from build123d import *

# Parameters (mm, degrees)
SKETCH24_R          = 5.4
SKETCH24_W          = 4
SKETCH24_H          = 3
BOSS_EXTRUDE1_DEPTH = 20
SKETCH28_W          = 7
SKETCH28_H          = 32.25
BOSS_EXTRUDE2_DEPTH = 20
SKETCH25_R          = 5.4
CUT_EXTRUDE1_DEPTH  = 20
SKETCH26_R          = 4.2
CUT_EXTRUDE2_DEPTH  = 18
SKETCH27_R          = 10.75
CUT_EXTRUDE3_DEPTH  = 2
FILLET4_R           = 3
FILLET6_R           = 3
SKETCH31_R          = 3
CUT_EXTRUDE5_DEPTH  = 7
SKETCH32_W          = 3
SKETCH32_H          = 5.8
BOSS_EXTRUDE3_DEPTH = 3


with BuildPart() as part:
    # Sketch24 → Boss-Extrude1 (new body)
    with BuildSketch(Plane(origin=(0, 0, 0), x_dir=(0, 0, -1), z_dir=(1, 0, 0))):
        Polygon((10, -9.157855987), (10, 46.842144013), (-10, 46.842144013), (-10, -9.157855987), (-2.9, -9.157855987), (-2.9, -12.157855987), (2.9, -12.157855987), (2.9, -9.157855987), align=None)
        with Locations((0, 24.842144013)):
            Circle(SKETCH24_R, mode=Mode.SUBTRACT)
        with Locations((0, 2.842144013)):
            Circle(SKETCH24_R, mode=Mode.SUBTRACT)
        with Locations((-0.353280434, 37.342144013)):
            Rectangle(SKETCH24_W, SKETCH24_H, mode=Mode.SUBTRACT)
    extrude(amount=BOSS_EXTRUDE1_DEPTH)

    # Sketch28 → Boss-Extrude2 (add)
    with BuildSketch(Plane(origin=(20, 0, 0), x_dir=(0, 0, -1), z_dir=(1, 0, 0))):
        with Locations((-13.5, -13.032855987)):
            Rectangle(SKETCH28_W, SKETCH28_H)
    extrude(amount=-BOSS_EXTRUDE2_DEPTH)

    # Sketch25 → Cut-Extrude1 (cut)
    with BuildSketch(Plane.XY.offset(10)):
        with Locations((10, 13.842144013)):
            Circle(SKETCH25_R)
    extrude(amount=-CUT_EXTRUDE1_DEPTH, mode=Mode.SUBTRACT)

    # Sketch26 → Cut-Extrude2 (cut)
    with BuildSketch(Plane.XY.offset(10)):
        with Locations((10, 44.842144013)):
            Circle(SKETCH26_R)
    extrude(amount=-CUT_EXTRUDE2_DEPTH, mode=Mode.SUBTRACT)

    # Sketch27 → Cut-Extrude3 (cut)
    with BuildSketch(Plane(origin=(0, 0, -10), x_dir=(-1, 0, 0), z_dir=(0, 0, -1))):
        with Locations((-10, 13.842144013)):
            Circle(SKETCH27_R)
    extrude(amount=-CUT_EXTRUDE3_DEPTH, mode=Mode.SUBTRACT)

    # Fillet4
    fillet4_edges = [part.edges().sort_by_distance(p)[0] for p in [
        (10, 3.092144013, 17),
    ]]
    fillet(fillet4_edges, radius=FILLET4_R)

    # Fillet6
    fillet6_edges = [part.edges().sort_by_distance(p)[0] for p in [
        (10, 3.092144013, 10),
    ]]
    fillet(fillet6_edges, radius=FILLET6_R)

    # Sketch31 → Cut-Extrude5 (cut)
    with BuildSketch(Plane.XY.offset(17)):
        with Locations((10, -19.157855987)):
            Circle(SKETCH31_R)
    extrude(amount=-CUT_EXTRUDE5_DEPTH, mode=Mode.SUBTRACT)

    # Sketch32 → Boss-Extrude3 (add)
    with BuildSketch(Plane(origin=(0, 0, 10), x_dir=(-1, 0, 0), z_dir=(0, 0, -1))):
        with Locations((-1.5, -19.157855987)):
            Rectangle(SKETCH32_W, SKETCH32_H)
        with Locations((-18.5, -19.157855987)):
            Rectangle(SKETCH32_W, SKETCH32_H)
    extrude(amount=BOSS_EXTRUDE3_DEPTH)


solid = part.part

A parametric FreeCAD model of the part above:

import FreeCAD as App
import Part
import Sketcher


def edges_at(feature, points):
    """Names of the edges that pass closest to the given points."""
    edges = feature.Shape.Edges
    near = lambda p: min(range(len(edges)), key=lambda i: edges[i].distToShape(Part.Vertex(*p))[0])
    return sorted({f"Edge{near(p) + 1}" for p in points})


def add_polygon(sketch, points):
    """Adds a closed chain of lines whose ends are joined by coincident constraints."""
    first, n = sketch.GeometryCount, len(points)
    for a, b in zip(points, points[1:] + points[:1]):
        sketch.addGeometry(Part.LineSegment(App.Vector(*a, 0), App.Vector(*b, 0)), False)
    for i in range(n):
        sketch.addConstraint(Sketcher.Constraint("Coincident", first + i, 2, first + (i + 1) % n, 1))

doc = App.newDocument("Part")
body = doc.addObject("PartDesign::Body", "Body")

sketch1 = body.newObject("Sketcher::SketchObject", "Sketch")
sketch1.AttachmentSupport = (doc.getObject("YZ_Plane"), [""])
sketch1.MapMode = "FlatFace"
add_polygon(sketch1, [(-9.2, -10), (46.8, -10), (46.8, 10), (-9.2, 10), (-9.2, 2.9), (-12.2, 2.9), (-12.2, -2.9), (-9.2, -2.9)])
sketch1.addGeometry(Part.Circle(App.Vector(2.8, 0, 0), App.Vector(0, 0, 1), 5.4), False)
add_polygon(sketch1, [(35.8, -1.6), (35.8, 2.4), (38.8, 2.4), (38.8, -1.6)])
sketch1.addGeometry(Part.Circle(App.Vector(24.8, 0, 0), App.Vector(0, 0, 1), 5.4), False)
sketch1.addConstraint(Sketcher.Constraint("Horizontal", 0))
sketch1.addConstraint(Sketcher.Constraint("Vertical", 1))
sketch1.addConstraint(Sketcher.Constraint("Horizontal", 2))
sketch1.addConstraint(Sketcher.Constraint("Vertical", 3))
sketch1.addConstraint(Sketcher.Constraint("Horizontal", 4))
sketch1.addConstraint(Sketcher.Constraint("Vertical", 5))
sketch1.addConstraint(Sketcher.Constraint("Horizontal", 6))
sketch1.addConstraint(Sketcher.Constraint("Vertical", 7))
sketch1.addConstraint(Sketcher.Constraint("Vertical", 9))
sketch1.addConstraint(Sketcher.Constraint("Horizontal", 10))
sketch1.addConstraint(Sketcher.Constraint("Vertical", 11))
sketch1.addConstraint(Sketcher.Constraint("Horizontal", 12))
sketch1.addConstraint(Sketcher.Constraint("Equal", 8, 13))
sketch1.addConstraint(Sketcher.Constraint("Symmetric", 3, 2, 6, 2, -1))
sketch1.addConstraint(Sketcher.Constraint("PointOnObject", 8, 3, -1))
sketch1.addConstraint(Sketcher.Constraint("PointOnObject", 13, 3, -1))
sketch1.addConstraint(Sketcher.Constraint("Equal", 6, 10))
sketch1.addConstraint(Sketcher.Constraint("Equal", 3, 7))
sketch1.addConstraint(Sketcher.Constraint("Diameter", 8, 10.8))
sketch1.addConstraint(Sketcher.Constraint("DistanceX", 0, 1, 0, 2, 56.0))
sketch1.addConstraint(Sketcher.Constraint("DistanceX", 4, 2, 4, 1, 3.0))
sketch1.addConstraint(Sketcher.Constraint("DistanceY", 1, 1, 1, 2, 20.0))
sketch1.addConstraint(Sketcher.Constraint("DistanceY", 9, 1, 9, 2, 4.0))
sketch1.addConstraint(Sketcher.Constraint("DistanceY", 3, 2, 3, 1, 7.1))
sketch1.addConstraint(Sketcher.Constraint("DistanceX", 8, 3, 13, 3, 22.0))
sketch1.addConstraint(Sketcher.Constraint("DistanceX", 13, 3, 0, 2, 22.0))
sketch1.addConstraint(Sketcher.Constraint("DistanceX", 13, 3, 9, 2, 11.0))
sketch1.addConstraint(Sketcher.Constraint("DistanceY", -1, 1, 9, 2, 2.35328))
sketch1.addConstraint(Sketcher.Constraint("DistanceX", -1, 1, 8, 3, 2.842144))
pad1 = body.newObject("PartDesign::Pad", "Pad")
pad1.Profile = sketch1
pad1.Length = 20

sketch2 = body.newObject("Sketcher::SketchObject", "Sketch001")
sketch2.AttachmentSupport = (doc.getObject("YZ_Plane"), [""])
sketch2.MapMode = "FlatFace"
sketch2.AttachmentOffset = App.Placement(App.Vector(0, 0, 20), App.Rotation())
add_polygon(sketch2, [(3, 17), (-29, 17), (-29, 10), (3, 10)])
sketch2.addConstraint(Sketcher.Constraint("Horizontal", 0))
sketch2.addConstraint(Sketcher.Constraint("Vertical", 1))
sketch2.addConstraint(Sketcher.Constraint("Horizontal", 2))
sketch2.addConstraint(Sketcher.Constraint("Vertical", 3))
sketch2.addConstraint(Sketcher.Constraint("DistanceY", 1, 2, 1, 1, 7.0))
sketch2.addConstraint(Sketcher.Constraint("DistanceY", -1, 1, 0, 2, 17.0))
sketch2.addConstraint(Sketcher.Constraint("DistanceX", 0, 2, 0, 1, 32.25))
sketch2.addConstraint(Sketcher.Constraint("DistanceX", 0, 2, -1, 1, 29.157856))
pad2 = body.newObject("PartDesign::Pad", "Pad001")
pad2.Profile = sketch2
pad2.Length = 20
pad2.Reversed = True

sketch3 = body.newObject("Sketcher::SketchObject", "Sketch002")
sketch3.AttachmentSupport = (doc.getObject("XY_Plane"), [""])
sketch3.MapMode = "FlatFace"
sketch3.AttachmentOffset = App.Placement(App.Vector(0, 0, 10), App.Rotation())
sketch3.addGeometry(Part.Circle(App.Vector(10, 14, 0), App.Vector(0, 0, 1), 5), False)
sketch3.addConstraint(Sketcher.Constraint("Diameter", 0, 10.8))
sketch3.addConstraint(Sketcher.Constraint("DistanceX", -1, 1, 0, 3, 10.0))
sketch3.addConstraint(Sketcher.Constraint("DistanceY", -1, 1, 0, 3, 13.842144))
pocket1 = body.newObject("PartDesign::Pocket", "Pocket")
pocket1.Profile = sketch3
pocket1.Length = 20

sketch4 = body.newObject("Sketcher::SketchObject", "Sketch003")
sketch4.AttachmentSupport = (doc.getObject("XY_Plane"), [""])
sketch4.MapMode = "FlatFace"
sketch4.AttachmentOffset = App.Placement(App.Vector(0, 0, 10), App.Rotation())
sketch4.addGeometry(Part.Circle(App.Vector(10, 44.8, 0), App.Vector(0, 0, 1), 4.2), False)
sketch4.addConstraint(Sketcher.Constraint("Diameter", 0, 8.4))
sketch4.addConstraint(Sketcher.Constraint("DistanceX", -1, 1, 0, 3, 10.0))
sketch4.addConstraint(Sketcher.Constraint("DistanceY", -1, 1, 0, 3, 44.842144))
pocket2 = body.newObject("PartDesign::Pocket", "Pocket001")
pocket2.Profile = sketch4
pocket2.Length = 18

sketch5 = body.newObject("Sketcher::SketchObject", "Sketch004")
sketch5.AttachmentSupport = (doc.getObject("XY_Plane"), [""])
sketch5.MapMode = "FlatFace"
sketch5.AttachmentOffset = App.Placement(App.Vector(0, 0, -10), App.Rotation())
sketch5.addGeometry(Part.Circle(App.Vector(10, 14, 0), App.Vector(0, 0, 1), 11), False)
sketch5.addConstraint(Sketcher.Constraint("Diameter", 0, 21.5))
sketch5.addConstraint(Sketcher.Constraint("DistanceX", -1, 1, 0, 3, 10.0))
sketch5.addConstraint(Sketcher.Constraint("DistanceY", -1, 1, 0, 3, 13.842144))
pocket3 = body.newObject("PartDesign::Pocket", "Pocket002")
pocket3.Profile = sketch5
pocket3.Length = 2
pocket3.Reversed = True
doc.recompute()

fillet = body.newObject("PartDesign::Fillet", "Fillet")
fillet.Base = (pocket3, edges_at(pocket3, [(10, 3.092, 17)]))
fillet.Radius = 3
doc.recompute()

fillet2 = body.newObject("PartDesign::Fillet", "Fillet001")
fillet2.Base = (fillet, edges_at(fillet, [(10, 3.092, 10)]))
fillet2.Radius = 3

sketch6 = body.newObject("Sketcher::SketchObject", "Sketch005")
sketch6.AttachmentSupport = (doc.getObject("XY_Plane"), [""])
sketch6.MapMode = "FlatFace"
sketch6.AttachmentOffset = App.Placement(App.Vector(0, 0, 17), App.Rotation())
sketch6.addGeometry(Part.Circle(App.Vector(10, -19.2, 0), App.Vector(0, 0, 1), 3), False)
sketch6.addConstraint(Sketcher.Constraint("Diameter", 0, 6.0))
sketch6.addConstraint(Sketcher.Constraint("DistanceX", -1, 1, 0, 3, 10.0))
sketch6.addConstraint(Sketcher.Constraint("DistanceY", 0, 3, -1, 1, 19.157856))
pocket4 = body.newObject("PartDesign::Pocket", "Pocket003")
pocket4.Profile = sketch6
pocket4.Length = 7

sketch7 = body.newObject("Sketcher::SketchObject", "Sketch006")
sketch7.AttachmentSupport = (doc.getObject("XY_Plane"), [""])
sketch7.MapMode = "FlatFace"
sketch7.AttachmentOffset = App.Placement(App.Vector(0, 0, 10), App.Rotation())
add_polygon(sketch7, [(3, -16.3), (3, -22.1), (0, -22.1), (0, -16.3)])
add_polygon(sketch7, [(20, -16.3), (20, -22.1), (17, -22.1), (17, -16.3)])
sketch7.addConstraint(Sketcher.Constraint("Vertical", 0))
sketch7.addConstraint(Sketcher.Constraint("Horizontal", 1))
sketch7.addConstraint(Sketcher.Constraint("Vertical", 2))
sketch7.addConstraint(Sketcher.Constraint("Horizontal", 3))
sketch7.addConstraint(Sketcher.Constraint("Vertical", 4))
sketch7.addConstraint(Sketcher.Constraint("Horizontal", 5))
sketch7.addConstraint(Sketcher.Constraint("Vertical", 6))
sketch7.addConstraint(Sketcher.Constraint("Horizontal", 7))
sketch7.addConstraint(Sketcher.Constraint("PointOnObject", 1, 2, -2))
sketch7.addConstraint(Sketcher.Constraint("Horizontal", 1, 2, 4, 2))
sketch7.addConstraint(Sketcher.Constraint("Horizontal", 3, 2, 6, 2))
sketch7.addConstraint(Sketcher.Constraint("Equal", 3, 5))
sketch7.addConstraint(Sketcher.Constraint("DistanceX", 1, 2, 1, 1, 3.0))
sketch7.addConstraint(Sketcher.Constraint("DistanceY", 0, 2, 0, 1, 5.8))
sketch7.addConstraint(Sketcher.Constraint("DistanceX", -1, 1, 4, 2, 20.0))
sketch7.addConstraint(Sketcher.Constraint("DistanceY", 0, 2, -1, 1, 22.057856))
pad3 = body.newObject("PartDesign::Pad", "Pad002")
pad3.Profile = sketch7
pad3.Length = 3
pad3.Reversed = True

doc.recompute()
